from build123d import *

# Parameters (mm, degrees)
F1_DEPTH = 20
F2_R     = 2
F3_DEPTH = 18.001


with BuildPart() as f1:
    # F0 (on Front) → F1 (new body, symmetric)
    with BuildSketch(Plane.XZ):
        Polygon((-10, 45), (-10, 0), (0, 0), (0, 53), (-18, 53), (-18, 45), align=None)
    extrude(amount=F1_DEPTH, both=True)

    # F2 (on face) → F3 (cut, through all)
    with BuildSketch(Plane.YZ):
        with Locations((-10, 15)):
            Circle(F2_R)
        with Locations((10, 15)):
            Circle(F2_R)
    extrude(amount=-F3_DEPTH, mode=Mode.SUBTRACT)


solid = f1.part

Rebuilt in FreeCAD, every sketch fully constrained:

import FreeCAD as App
import Part
import Sketcher


def add_polygon(sketch, points):
    """Adds a closed chain of lines whose ends are joined by coincident constraints."""
    first, n = sketch.GeometryCount, len(points)
    for a, b in zip(points, points[1:] + points[:1]):
        sketch.addGeometry(Part.LineSegment(App.Vector(*a, 0), App.Vector(*b, 0)), False)
    for i in range(n):
        sketch.addConstraint(Sketcher.Constraint("Coincident", first + i, 2, first + (i + 1) % n, 1))

doc = App.newDocument("Part")
body = doc.addObject("PartDesign::Body", "Body")

# Sketch on XZ plane
sketch1 = body.newObject("Sketcher::SketchObject", "Sketch")
sketch1.AttachmentSupport = (doc.getObject("XZ_Plane"), [""])
sketch1.MapMode = "FlatFace"
add_polygon(sketch1, [(-10, 45), (-10, 0), (0, 0), (0, 53), (-18, 53), (-18, 45)])  # lines 0-5
sketch1.addConstraint([
    Sketcher.Constraint("Vertical", 0),
    Sketcher.Constraint("Horizontal", 1),
    Sketcher.Constraint("Vertical", 2),
    Sketcher.Constraint("Horizontal", 3),
    Sketcher.Constraint("Vertical", 4),
    Sketcher.Constraint("Horizontal", 5),
    Sketcher.Constraint("Coincident", 1, 2, -1, 1),
    Sketcher.Constraint("Equal", 5, 4),
    Sketcher.Constraint("DistanceX", 1, 1, 1, 2, 10.0),
    Sketcher.Constraint("DistanceX", 3, 2, 3, 1, 18.0),
    Sketcher.Constraint("DistanceY", 0, 2, 0, 1, 45.0),
])
pad1 = body.newObject("PartDesign::Pad", "Pad")
pad1.Profile = sketch1
pad1.Length = 40
pad1.Midplane = True

# Sketch on YZ plane
sketch2 = body.newObject("Sketcher::SketchObject", "Sketch001")
sketch2.AttachmentSupport = (doc.getObject("YZ_Plane"), [""])
sketch2.MapMode = "FlatFace"
sketch2.addGeometry([
    Part.Circle(App.Vector(-10, 15, 0), App.Vector(0, 0, 1), 2),
    Part.Circle(App.Vector(10, 15, 0), App.Vector(0, 0, 1), 2),
], False)
sketch2.addConstraint([
    Sketcher.Constraint("Equal", 0, 1),
    Sketcher.Constraint("Symmetric", 0, 3, 1, 3, -2),
    Sketcher.Constraint("Diameter", 0, 4.0),
    Sketcher.Constraint("DistanceX", 0, 3, -1, 1, 10.0),
    Sketcher.Constraint("DistanceY", -1, 1, 0, 3, 15.0),
])
pocket1 = body.newObject("PartDesign::Pocket", "Pocket")
pocket1.Profile = sketch2
pocket1.Type = "ThroughAll"

doc.recompute()
